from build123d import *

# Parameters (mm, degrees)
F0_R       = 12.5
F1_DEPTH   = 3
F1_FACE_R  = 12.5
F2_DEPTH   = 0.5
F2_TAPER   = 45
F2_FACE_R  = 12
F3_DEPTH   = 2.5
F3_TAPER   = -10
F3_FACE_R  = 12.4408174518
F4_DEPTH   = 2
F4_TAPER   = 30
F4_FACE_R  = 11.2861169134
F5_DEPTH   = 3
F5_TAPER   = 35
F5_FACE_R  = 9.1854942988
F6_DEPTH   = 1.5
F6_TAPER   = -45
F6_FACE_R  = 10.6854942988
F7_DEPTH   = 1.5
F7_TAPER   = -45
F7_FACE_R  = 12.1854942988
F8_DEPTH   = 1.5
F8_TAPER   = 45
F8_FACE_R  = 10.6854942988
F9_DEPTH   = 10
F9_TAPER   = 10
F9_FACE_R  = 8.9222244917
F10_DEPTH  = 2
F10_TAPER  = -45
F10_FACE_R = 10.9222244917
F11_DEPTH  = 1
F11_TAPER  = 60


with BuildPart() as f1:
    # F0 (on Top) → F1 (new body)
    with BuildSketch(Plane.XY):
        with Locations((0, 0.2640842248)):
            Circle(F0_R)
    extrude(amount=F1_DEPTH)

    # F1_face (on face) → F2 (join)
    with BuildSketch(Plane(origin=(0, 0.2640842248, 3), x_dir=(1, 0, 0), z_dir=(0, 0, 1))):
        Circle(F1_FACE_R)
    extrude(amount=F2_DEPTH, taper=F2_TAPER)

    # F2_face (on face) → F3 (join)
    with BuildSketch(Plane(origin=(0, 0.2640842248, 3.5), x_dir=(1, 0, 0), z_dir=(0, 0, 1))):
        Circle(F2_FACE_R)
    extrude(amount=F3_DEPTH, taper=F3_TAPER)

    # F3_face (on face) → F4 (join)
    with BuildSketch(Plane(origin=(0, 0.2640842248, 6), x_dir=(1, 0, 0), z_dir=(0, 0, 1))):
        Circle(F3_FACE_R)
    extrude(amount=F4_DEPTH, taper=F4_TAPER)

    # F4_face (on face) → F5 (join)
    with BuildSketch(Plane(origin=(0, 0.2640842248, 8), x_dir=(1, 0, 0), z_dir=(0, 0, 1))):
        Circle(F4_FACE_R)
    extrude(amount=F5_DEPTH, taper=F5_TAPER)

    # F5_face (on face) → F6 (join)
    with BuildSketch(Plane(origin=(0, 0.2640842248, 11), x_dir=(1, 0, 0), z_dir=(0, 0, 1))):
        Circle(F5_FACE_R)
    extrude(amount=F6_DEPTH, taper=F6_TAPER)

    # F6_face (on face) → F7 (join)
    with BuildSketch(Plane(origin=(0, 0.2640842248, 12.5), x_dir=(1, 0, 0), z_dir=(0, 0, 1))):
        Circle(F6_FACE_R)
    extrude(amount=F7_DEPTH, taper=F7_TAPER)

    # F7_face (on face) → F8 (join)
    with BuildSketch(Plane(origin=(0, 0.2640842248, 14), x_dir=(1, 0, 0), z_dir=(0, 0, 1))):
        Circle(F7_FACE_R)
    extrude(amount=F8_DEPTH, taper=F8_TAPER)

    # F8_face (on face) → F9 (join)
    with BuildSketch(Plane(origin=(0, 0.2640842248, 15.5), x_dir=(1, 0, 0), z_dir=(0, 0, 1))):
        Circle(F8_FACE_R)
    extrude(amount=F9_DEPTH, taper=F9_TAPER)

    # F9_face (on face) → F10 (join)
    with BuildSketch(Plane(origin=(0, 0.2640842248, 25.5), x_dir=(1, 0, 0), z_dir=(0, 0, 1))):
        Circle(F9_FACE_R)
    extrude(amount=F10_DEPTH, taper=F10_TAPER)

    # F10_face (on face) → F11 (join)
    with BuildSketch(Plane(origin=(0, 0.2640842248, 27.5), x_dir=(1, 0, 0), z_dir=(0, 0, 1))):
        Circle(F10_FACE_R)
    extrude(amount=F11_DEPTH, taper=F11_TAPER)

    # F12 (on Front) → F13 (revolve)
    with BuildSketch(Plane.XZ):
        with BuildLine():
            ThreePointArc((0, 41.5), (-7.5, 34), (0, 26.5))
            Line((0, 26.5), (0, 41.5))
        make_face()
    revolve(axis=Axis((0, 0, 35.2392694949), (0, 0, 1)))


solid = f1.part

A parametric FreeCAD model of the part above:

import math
import FreeCAD as App
import Part
import Sketcher

doc = App.newDocument("Part")
body = doc.addObject("PartDesign::Body", "Body")

# Sketch on XY plane
sketch1 = body.newObject("Sketcher::SketchObject", "Sketch")
sketch1.AttachmentSupport = (doc.getObject("XY_Plane"), [""])
sketch1.MapMode = "FlatFace"
sketch1.addGeometry(Part.Circle(App.Vector(0, 0.264084, 0), App.Vector(0, 0, 1), 12.5), False)
sketch1.addConstraint([
    Sketcher.Constraint("PointOnObject", 0, 3, -2),
    Sketcher.Constraint("Diameter", 0, 25.0),
    Sketcher.Constraint("DistanceY", -1, 1, 0, 3, 0.264084),
])
pad1 = body.newObject("PartDesign::Pad", "Pad")
pad1.Profile = sketch1
pad1.Length = 3

# Sketch on XY plane
sketch2 = body.newObject("Sketcher::SketchObject", "Sketch001")
sketch2.AttachmentSupport = (doc.getObject("XY_Plane"), [""])
sketch2.MapMode = "FlatFace"
sketch2.AttachmentOffset = App.Placement(App.Vector(0, 0, 3), App.Rotation())
sketch2.addGeometry(Part.Circle(App.Vector(0, 0.264084, 0), App.Vector(0, 0, 1), 12.5), False)
sketch2.addConstraint([
    Sketcher.Constraint("PointOnObject", 0, 3, -2),
    Sketcher.Constraint("Diameter", 0, 25.0),
    Sketcher.Constraint("DistanceY", -1, 1, 0, 3, 0.264084),
])
pad2 = body.newObject("PartDesign::Pad", "Pad001")
pad2.Profile = sketch2
pad2.Length = 0.5
pad2.TaperAngle = -45

# Sketch on XY plane
sketch3 = body.newObject("Sketcher::SketchObject", "Sketch002")
sketch3.AttachmentSupport = (doc.getObject("XY_Plane"), [""])
sketch3.MapMode = "FlatFace"
sketch3.AttachmentOffset = App.Placement(App.Vector(0, 0, 3.5), App.Rotation())
sketch3.addGeometry(Part.Circle(App.Vector(0, 0.264084, 0), App.Vector(0, 0, 1), 12), False)
sketch3.addConstraint([
    Sketcher.Constraint("PointOnObject", 0, 3, -2),
    Sketcher.Constraint("Diameter", 0, 24.0),
    Sketcher.Constraint("DistanceY", -1, 1, 0, 3, 0.264084),
])
pad3 = body.newObject("PartDesign::Pad", "Pad002")
pad3.Profile = sketch3
pad3.Length = 2.5
pad3.TaperAngle = 10

# Sketch on XY plane
sketch4 = body.newObject("Sketcher::SketchObject", "Sketch003")
sketch4.AttachmentSupport = (doc.getObject("XY_Plane"), [""])
sketch4.MapMode = "FlatFace"
sketch4.AttachmentOffset = App.Placement(App.Vector(0, 0, 6), App.Rotation())
sketch4.addGeometry(Part.Circle(App.Vector(0, 0.264084, 0), App.Vector(0, 0, 1), 12.440817), False)
sketch4.addConstraint([
    Sketcher.Constraint("PointOnObject", 0, 3, -2),
    Sketcher.Constraint("Diameter", 0, 24.881635),
    Sketcher.Constraint("DistanceY", -1, 1, 0, 3, 0.264084),
])
pad4 = body.newObject("PartDesign::Pad", "Pad003")
pad4.Profile = sketch4
pad4.Length = 2
pad4.TaperAngle = -30

# Sketch on XY plane
sketch5 = body.newObject("Sketcher::SketchObject", "Sketch004")
sketch5.AttachmentSupport = (doc.getObject("XY_Plane"), [""])
sketch5.MapMode = "FlatFace"
sketch5.AttachmentOffset = App.Placement(App.Vector(0, 0, 8), App.Rotation())
sketch5.addGeometry(Part.Circle(App.Vector(0, 0.264084, 0), App.Vector(0, 0, 1), 11.286117), False)
sketch5.addConstraint([
    Sketcher.Constraint("PointOnObject", 0, 3, -2),
    Sketcher.Constraint("Diameter", 0, 22.572234),
    Sketcher.Constraint("DistanceY", -1, 1, 0, 3, 0.264084),
])
pad5 = body.newObject("PartDesign::Pad", "Pad004")
pad5.Profile = sketch5
pad5.Length = 3
pad5.TaperAngle = -35

# Sketch on XY plane
sketch6 = body.newObject("Sketcher::SketchObject", "Sketch005")
sketch6.AttachmentSupport = (doc.getObject("XY_Plane"), [""])
sketch6.MapMode = "FlatFace"
sketch6.AttachmentOffset = App.Placement(App.Vector(0, 0, 11), App.Rotation())
sketch6.addGeometry(Part.Circle(App.Vector(0, 0.264084, 0), App.Vector(0, 0, 1), 9.185494), False)
sketch6.addConstraint([
    Sketcher.Constraint("PointOnObject", 0, 3, -2),
    Sketcher.Constraint("Diameter", 0, 18.370989),
    Sketcher.Constraint("DistanceY", -1, 1, 0, 3, 0.264084),
])
pad6 = body.newObject("PartDesign::Pad", "Pad005")
pad6.Profile = sketch6
pad6.Length = 1.5
pad6.TaperAngle = 45

# Sketch on XY plane
sketch7 = body.newObject("Sketcher::SketchObject", "Sketch006")
sketch7.AttachmentSupport = (doc.getObject("XY_Plane"), [""])
sketch7.MapMode = "FlatFace"
sketch7.AttachmentOffset = App.Placement(App.Vector(0, 0, 12.5), App.Rotation())
sketch7.addGeometry(Part.Circle(App.Vector(0, 0.264084, 0), App.Vector(0, 0, 1), 10.685494), False)
sketch7.addConstraint([
    Sketcher.Constraint("PointOnObject", 0, 3, -2),
    Sketcher.Constraint("Diameter", 0, 21.370989),
    Sketcher.Constraint("DistanceY", -1, 1, 0, 3, 0.264084),
])
pad7 = body.newObject("PartDesign::Pad", "Pad006")
pad7.Profile = sketch7
pad7.Length = 1.5
pad7.TaperAngle = 45

# Sketch on XY plane
sketch8 = body.newObject("Sketcher::SketchObject", "Sketch007")
sketch8.AttachmentSupport = (doc.getObject("XY_Plane"), [""])
sketch8.MapMode = "FlatFace"
sketch8.AttachmentOffset = App.Placement(App.Vector(0, 0, 14), App.Rotation())
sketch8.addGeometry(Part.Circle(App.Vector(0, 0.264084, 0), App.Vector(0, 0, 1), 12.185494), False)
sketch8.addConstraint([
    Sketcher.Constraint("PointOnObject", 0, 3, -2),
    Sketcher.Constraint("Diameter", 0, 24.370989),
    Sketcher.Constraint("DistanceY", -1, 1, 0, 3, 0.264084),
])
pad8 = body.newObject("PartDesign::Pad", "Pad007")
pad8.Profile = sketch8
pad8.Length = 1.5
pad8.TaperAngle = -45

# Sketch on XY plane
sketch9 = body.newObject("Sketcher::SketchObject", "Sketch008")
sketch9.AttachmentSupport = (doc.getObject("XY_Plane"), [""])
sketch9.MapMode = "FlatFace"
sketch9.AttachmentOffset = App.Placement(App.Vector(0, 0, 15.5), App.Rotation())
sketch9.addGeometry(Part.Circle(App.Vector(0, 0.264084, 0), App.Vector(0, 0, 1), 10.685494), False)
sketch9.addConstraint([
    Sketcher.Constraint("PointOnObject", 0, 3, -2),
    Sketcher.Constraint("Diameter", 0, 21.370989),
    Sketcher.Constraint("DistanceY", -1, 1, 0, 3, 0.264084),
])
pad9 = body.newObject("PartDesign::Pad", "Pad008")
pad9.Profile = sketch9
pad9.Length = 10
pad9.TaperAngle = -10

# Sketch on XY plane
sketch10 = body.newObject("Sketcher::SketchObject", "Sketch009")
sketch10.AttachmentSupport = (doc.getObject("XY_Plane"), [""])
sketch10.MapMode = "FlatFace"
sketch10.AttachmentOffset = App.Placement(App.Vector(0, 0, 25.5), App.Rotation())
sketch10.addGeometry(Part.Circle(App.Vector(0, 0.264084, 0), App.Vector(0, 0, 1), 8.922224), False)
sketch10.addConstraint([
    Sketcher.Constraint("PointOnObject", 0, 3, -2),
    Sketcher.Constraint("Diameter", 0, 17.844449),
    Sketcher.Constraint("DistanceY", -1, 1, 0, 3, 0.264084),
])
pad10 = body.newObject("PartDesign::Pad", "Pad009")
pad10.Profile = sketch10
pad10.Length = 2
pad10.TaperAngle = 45

# Sketch on XY plane
sketch11 = body.newObject("Sketcher::SketchObject", "Sketch010")
sketch11.AttachmentSupport = (doc.getObject("XY_Plane"), [""])
sketch11.MapMode = "FlatFace"
sketch11.AttachmentOffset = App.Placement(App.Vector(0, 0, 27.5), App.Rotation())
sketch11.addGeometry(Part.Circle(App.Vector(0, 0.264084, 0), App.Vector(0, 0, 1), 10.922224), False)
sketch11.addConstraint([
    Sketcher.Constraint("PointOnObject", 0, 3, -2),
    Sketcher.Constraint("Diameter", 0, 21.844449),
    Sketcher.Constraint("DistanceY", -1, 1, 0, 3, 0.264084),
])
pad11 = body.newObject("PartDesign::Pad", "Pad010")
pad11.Profile = sketch11
pad11.Length = 1
pad11.TaperAngle = -60

# Sketch on XZ plane
sketch12 = body.newObject("Sketcher::SketchObject", "Sketch011")
sketch12.AttachmentSupport = (doc.getObject("XZ_Plane"), [""])
sketch12.MapMode = "FlatFace"
sketch12.addGeometry([
    Part.ArcOfCircle(Part.Circle(App.Vector(0, 34, 0), App.Vector(0, 0, 1), 7.5), math.radians(90), math.radians(270)),
    Part.LineSegment(App.Vector(0, 26.5, 0), App.Vector(0, 41.5, 0)),
], False)
sketch12.addConstraint([
    Sketcher.Constraint("Coincident", 0, 1, 1, 2),
    Sketcher.Constraint("Coincident", 1, 1, 0, 2),
    Sketcher.Constraint("Vertical", 1),
    Sketcher.Constraint("PointOnObject", 0, 3, -2),
    Sketcher.Constraint("PointOnObject", 0, 1, -2),
    Sketcher.Constraint("Radius", 0, 7.5),
    Sketcher.Constraint("DistanceY", -1, 1, 0, 3, 34.0),
])
revolution = body.newObject("PartDesign::Revolution", "Revolution")
revolution.Profile = sketch12
revolution.ReferenceAxis = (sketch12, ["V_Axis"])
revolution.Angle = 360

doc.recompute()
